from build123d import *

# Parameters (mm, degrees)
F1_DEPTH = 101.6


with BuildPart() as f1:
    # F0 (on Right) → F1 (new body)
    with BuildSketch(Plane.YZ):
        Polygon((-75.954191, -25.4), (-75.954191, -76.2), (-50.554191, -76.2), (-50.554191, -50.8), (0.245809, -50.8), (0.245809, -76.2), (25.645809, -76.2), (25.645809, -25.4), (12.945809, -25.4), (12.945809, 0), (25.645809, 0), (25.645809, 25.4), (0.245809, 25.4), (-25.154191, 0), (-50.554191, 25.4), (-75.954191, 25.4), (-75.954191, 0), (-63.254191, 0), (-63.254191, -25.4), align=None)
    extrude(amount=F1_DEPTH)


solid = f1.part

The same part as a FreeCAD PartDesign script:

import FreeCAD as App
import Part
import Sketcher
from FreeCAD import Vector
Q = App.Units.Quantity


def add_polygon(sketch, points):
    """Adds a closed chain of lines whose ends are joined by coincident constraints."""
    first, n = sketch.GeometryCount, len(points)
    for a, b in zip(points, points[1:] + points[:1]):
        sketch.addGeometry(Part.LineSegment(App.Vector(*a, 0), App.Vector(*b, 0)), False)
    for i in range(n):
        sketch.addConstraint(Sketcher.Constraint("Coincident", first + i, 2, first + (i + 1) % n, 1))

doc = App.newDocument("Part")
body = doc.addObject("PartDesign::Body", "Body")

# Sketch on YZ plane
sketch1 = body.newObject("Sketcher::SketchObject", "Sketch")
sketch1.AttachmentSupport = (doc.getObject("YZ_Plane"), [""])
sketch1.MapMode = "FlatFace"
add_polygon(sketch1, [(-75.954191, -25.4), (-75.954191, -76.2), (-50.554191, -76.2), (-50.554191, -50.8), (0.245809, -50.8), (0.245809, -76.2), (25.645809, -76.2), (25.645809, -25.4), (12.945809, -25.4), (12.945809, 0), (25.645809, 0), (25.645809, 25.4), (0.245809, 25.4), (-25.154191, 0), (-50.554191, 25.4), (-75.954191, 25.4), (-75.954191, 0), (-63.254191, 0), (-63.254191, -25.4)])  # lines 0-18
sketch1.addConstraint(Sketcher.Constraint("Vertical", 0))
sketch1.addConstraint(Sketcher.Constraint("Horizontal", 1))
sketch1.addConstraint(Sketcher.Constraint("Vertical", 2))
sketch1.addConstraint(Sketcher.Constraint("Horizontal", 3))
sketch1.addConstraint(Sketcher.Constraint("Vertical", 4))
sketch1.addConstraint(Sketcher.Constraint("Horizontal", 5))
sketch1.addConstraint(Sketcher.Constraint("Vertical", 6))
sketch1.addConstraint(Sketcher.Constraint("Horizontal", 7))
sketch1.addConstraint(Sketcher.Constraint("Vertical", 8))
sketch1.addConstraint(Sketcher.Constraint("Horizontal", 9))
sketch1.addConstraint(Sketcher.Constraint("Vertical", 10))
sketch1.addConstraint(Sketcher.Constraint("Horizontal", 11))
sketch1.addConstraint(Sketcher.Constraint("Horizontal", 14))
sketch1.addConstraint(Sketcher.Constraint("Vertical", 15))
sketch1.addConstraint(Sketcher.Constraint("Horizontal", 16))
sketch1.addConstraint(Sketcher.Constraint("Vertical", 17))
sketch1.addConstraint(Sketcher.Constraint("Horizontal", 18))
sketch1.addConstraint(Sketcher.Constraint("Symmetric", 6, 2, 10, 2, -1))
sketch1.addConstraint(Sketcher.Constraint("Symmetric", 14, 2, 18, 2, -1))
sketch1.addConstraint(Sketcher.Constraint("PointOnObject", 8, 2, -1))
sketch1.addConstraint(Sketcher.Constraint("PointOnObject", 12, 2, -1))
sketch1.addConstraint(Sketcher.Constraint("PointOnObject", 15, 2, -1))
sketch1.addConstraint(Sketcher.Constraint("Perpendicular", 12, 13))
sketch1.addConstraint(Sketcher.Constraint("Horizontal", 1, 2, 4, 2))
sketch1.addConstraint(Sketcher.Constraint("Horizontal", 11, 2, 13, 2))
sketch1.addConstraint(Sketcher.Constraint("Vertical", 4, 2, 11, 2))
sketch1.addConstraint(Sketcher.Constraint("Vertical", 2, 2, 13, 2))
sketch1.addConstraint(Sketcher.Constraint("Equal", 1, 5))
sketch1.addConstraint(Sketcher.Constraint("Equal", 9, 16))
sketch1.addConstraint(Sketcher.Constraint("Equal", 3, 0))
sketch1.addConstraint(Sketcher.Constraint("Equal", 14, 2))
sketch1.addConstraint(Sketcher.Constraint("Equal", 4, 8))
sketch1.addConstraint(Sketcher.Constraint("Equal", 12, 13))
sketch1.addConstraint(Sketcher.Constraint("DistanceX", 1, 1, 1, 2, Q("1 in")))
sketch1.addConstraint(Sketcher.Constraint("DistanceX", 7, 2, 7, 1, Q("0.5 in")))
sketch1.addConstraint(Sketcher.Constraint("DistanceX", 0, 2, -1, 1, Q("75.954191 mm")))
pad1 = body.newObject("PartDesign::Pad", "Pad")
pad1.Profile = sketch1
pad1.Length = Q("4 in")

doc.recompute()
